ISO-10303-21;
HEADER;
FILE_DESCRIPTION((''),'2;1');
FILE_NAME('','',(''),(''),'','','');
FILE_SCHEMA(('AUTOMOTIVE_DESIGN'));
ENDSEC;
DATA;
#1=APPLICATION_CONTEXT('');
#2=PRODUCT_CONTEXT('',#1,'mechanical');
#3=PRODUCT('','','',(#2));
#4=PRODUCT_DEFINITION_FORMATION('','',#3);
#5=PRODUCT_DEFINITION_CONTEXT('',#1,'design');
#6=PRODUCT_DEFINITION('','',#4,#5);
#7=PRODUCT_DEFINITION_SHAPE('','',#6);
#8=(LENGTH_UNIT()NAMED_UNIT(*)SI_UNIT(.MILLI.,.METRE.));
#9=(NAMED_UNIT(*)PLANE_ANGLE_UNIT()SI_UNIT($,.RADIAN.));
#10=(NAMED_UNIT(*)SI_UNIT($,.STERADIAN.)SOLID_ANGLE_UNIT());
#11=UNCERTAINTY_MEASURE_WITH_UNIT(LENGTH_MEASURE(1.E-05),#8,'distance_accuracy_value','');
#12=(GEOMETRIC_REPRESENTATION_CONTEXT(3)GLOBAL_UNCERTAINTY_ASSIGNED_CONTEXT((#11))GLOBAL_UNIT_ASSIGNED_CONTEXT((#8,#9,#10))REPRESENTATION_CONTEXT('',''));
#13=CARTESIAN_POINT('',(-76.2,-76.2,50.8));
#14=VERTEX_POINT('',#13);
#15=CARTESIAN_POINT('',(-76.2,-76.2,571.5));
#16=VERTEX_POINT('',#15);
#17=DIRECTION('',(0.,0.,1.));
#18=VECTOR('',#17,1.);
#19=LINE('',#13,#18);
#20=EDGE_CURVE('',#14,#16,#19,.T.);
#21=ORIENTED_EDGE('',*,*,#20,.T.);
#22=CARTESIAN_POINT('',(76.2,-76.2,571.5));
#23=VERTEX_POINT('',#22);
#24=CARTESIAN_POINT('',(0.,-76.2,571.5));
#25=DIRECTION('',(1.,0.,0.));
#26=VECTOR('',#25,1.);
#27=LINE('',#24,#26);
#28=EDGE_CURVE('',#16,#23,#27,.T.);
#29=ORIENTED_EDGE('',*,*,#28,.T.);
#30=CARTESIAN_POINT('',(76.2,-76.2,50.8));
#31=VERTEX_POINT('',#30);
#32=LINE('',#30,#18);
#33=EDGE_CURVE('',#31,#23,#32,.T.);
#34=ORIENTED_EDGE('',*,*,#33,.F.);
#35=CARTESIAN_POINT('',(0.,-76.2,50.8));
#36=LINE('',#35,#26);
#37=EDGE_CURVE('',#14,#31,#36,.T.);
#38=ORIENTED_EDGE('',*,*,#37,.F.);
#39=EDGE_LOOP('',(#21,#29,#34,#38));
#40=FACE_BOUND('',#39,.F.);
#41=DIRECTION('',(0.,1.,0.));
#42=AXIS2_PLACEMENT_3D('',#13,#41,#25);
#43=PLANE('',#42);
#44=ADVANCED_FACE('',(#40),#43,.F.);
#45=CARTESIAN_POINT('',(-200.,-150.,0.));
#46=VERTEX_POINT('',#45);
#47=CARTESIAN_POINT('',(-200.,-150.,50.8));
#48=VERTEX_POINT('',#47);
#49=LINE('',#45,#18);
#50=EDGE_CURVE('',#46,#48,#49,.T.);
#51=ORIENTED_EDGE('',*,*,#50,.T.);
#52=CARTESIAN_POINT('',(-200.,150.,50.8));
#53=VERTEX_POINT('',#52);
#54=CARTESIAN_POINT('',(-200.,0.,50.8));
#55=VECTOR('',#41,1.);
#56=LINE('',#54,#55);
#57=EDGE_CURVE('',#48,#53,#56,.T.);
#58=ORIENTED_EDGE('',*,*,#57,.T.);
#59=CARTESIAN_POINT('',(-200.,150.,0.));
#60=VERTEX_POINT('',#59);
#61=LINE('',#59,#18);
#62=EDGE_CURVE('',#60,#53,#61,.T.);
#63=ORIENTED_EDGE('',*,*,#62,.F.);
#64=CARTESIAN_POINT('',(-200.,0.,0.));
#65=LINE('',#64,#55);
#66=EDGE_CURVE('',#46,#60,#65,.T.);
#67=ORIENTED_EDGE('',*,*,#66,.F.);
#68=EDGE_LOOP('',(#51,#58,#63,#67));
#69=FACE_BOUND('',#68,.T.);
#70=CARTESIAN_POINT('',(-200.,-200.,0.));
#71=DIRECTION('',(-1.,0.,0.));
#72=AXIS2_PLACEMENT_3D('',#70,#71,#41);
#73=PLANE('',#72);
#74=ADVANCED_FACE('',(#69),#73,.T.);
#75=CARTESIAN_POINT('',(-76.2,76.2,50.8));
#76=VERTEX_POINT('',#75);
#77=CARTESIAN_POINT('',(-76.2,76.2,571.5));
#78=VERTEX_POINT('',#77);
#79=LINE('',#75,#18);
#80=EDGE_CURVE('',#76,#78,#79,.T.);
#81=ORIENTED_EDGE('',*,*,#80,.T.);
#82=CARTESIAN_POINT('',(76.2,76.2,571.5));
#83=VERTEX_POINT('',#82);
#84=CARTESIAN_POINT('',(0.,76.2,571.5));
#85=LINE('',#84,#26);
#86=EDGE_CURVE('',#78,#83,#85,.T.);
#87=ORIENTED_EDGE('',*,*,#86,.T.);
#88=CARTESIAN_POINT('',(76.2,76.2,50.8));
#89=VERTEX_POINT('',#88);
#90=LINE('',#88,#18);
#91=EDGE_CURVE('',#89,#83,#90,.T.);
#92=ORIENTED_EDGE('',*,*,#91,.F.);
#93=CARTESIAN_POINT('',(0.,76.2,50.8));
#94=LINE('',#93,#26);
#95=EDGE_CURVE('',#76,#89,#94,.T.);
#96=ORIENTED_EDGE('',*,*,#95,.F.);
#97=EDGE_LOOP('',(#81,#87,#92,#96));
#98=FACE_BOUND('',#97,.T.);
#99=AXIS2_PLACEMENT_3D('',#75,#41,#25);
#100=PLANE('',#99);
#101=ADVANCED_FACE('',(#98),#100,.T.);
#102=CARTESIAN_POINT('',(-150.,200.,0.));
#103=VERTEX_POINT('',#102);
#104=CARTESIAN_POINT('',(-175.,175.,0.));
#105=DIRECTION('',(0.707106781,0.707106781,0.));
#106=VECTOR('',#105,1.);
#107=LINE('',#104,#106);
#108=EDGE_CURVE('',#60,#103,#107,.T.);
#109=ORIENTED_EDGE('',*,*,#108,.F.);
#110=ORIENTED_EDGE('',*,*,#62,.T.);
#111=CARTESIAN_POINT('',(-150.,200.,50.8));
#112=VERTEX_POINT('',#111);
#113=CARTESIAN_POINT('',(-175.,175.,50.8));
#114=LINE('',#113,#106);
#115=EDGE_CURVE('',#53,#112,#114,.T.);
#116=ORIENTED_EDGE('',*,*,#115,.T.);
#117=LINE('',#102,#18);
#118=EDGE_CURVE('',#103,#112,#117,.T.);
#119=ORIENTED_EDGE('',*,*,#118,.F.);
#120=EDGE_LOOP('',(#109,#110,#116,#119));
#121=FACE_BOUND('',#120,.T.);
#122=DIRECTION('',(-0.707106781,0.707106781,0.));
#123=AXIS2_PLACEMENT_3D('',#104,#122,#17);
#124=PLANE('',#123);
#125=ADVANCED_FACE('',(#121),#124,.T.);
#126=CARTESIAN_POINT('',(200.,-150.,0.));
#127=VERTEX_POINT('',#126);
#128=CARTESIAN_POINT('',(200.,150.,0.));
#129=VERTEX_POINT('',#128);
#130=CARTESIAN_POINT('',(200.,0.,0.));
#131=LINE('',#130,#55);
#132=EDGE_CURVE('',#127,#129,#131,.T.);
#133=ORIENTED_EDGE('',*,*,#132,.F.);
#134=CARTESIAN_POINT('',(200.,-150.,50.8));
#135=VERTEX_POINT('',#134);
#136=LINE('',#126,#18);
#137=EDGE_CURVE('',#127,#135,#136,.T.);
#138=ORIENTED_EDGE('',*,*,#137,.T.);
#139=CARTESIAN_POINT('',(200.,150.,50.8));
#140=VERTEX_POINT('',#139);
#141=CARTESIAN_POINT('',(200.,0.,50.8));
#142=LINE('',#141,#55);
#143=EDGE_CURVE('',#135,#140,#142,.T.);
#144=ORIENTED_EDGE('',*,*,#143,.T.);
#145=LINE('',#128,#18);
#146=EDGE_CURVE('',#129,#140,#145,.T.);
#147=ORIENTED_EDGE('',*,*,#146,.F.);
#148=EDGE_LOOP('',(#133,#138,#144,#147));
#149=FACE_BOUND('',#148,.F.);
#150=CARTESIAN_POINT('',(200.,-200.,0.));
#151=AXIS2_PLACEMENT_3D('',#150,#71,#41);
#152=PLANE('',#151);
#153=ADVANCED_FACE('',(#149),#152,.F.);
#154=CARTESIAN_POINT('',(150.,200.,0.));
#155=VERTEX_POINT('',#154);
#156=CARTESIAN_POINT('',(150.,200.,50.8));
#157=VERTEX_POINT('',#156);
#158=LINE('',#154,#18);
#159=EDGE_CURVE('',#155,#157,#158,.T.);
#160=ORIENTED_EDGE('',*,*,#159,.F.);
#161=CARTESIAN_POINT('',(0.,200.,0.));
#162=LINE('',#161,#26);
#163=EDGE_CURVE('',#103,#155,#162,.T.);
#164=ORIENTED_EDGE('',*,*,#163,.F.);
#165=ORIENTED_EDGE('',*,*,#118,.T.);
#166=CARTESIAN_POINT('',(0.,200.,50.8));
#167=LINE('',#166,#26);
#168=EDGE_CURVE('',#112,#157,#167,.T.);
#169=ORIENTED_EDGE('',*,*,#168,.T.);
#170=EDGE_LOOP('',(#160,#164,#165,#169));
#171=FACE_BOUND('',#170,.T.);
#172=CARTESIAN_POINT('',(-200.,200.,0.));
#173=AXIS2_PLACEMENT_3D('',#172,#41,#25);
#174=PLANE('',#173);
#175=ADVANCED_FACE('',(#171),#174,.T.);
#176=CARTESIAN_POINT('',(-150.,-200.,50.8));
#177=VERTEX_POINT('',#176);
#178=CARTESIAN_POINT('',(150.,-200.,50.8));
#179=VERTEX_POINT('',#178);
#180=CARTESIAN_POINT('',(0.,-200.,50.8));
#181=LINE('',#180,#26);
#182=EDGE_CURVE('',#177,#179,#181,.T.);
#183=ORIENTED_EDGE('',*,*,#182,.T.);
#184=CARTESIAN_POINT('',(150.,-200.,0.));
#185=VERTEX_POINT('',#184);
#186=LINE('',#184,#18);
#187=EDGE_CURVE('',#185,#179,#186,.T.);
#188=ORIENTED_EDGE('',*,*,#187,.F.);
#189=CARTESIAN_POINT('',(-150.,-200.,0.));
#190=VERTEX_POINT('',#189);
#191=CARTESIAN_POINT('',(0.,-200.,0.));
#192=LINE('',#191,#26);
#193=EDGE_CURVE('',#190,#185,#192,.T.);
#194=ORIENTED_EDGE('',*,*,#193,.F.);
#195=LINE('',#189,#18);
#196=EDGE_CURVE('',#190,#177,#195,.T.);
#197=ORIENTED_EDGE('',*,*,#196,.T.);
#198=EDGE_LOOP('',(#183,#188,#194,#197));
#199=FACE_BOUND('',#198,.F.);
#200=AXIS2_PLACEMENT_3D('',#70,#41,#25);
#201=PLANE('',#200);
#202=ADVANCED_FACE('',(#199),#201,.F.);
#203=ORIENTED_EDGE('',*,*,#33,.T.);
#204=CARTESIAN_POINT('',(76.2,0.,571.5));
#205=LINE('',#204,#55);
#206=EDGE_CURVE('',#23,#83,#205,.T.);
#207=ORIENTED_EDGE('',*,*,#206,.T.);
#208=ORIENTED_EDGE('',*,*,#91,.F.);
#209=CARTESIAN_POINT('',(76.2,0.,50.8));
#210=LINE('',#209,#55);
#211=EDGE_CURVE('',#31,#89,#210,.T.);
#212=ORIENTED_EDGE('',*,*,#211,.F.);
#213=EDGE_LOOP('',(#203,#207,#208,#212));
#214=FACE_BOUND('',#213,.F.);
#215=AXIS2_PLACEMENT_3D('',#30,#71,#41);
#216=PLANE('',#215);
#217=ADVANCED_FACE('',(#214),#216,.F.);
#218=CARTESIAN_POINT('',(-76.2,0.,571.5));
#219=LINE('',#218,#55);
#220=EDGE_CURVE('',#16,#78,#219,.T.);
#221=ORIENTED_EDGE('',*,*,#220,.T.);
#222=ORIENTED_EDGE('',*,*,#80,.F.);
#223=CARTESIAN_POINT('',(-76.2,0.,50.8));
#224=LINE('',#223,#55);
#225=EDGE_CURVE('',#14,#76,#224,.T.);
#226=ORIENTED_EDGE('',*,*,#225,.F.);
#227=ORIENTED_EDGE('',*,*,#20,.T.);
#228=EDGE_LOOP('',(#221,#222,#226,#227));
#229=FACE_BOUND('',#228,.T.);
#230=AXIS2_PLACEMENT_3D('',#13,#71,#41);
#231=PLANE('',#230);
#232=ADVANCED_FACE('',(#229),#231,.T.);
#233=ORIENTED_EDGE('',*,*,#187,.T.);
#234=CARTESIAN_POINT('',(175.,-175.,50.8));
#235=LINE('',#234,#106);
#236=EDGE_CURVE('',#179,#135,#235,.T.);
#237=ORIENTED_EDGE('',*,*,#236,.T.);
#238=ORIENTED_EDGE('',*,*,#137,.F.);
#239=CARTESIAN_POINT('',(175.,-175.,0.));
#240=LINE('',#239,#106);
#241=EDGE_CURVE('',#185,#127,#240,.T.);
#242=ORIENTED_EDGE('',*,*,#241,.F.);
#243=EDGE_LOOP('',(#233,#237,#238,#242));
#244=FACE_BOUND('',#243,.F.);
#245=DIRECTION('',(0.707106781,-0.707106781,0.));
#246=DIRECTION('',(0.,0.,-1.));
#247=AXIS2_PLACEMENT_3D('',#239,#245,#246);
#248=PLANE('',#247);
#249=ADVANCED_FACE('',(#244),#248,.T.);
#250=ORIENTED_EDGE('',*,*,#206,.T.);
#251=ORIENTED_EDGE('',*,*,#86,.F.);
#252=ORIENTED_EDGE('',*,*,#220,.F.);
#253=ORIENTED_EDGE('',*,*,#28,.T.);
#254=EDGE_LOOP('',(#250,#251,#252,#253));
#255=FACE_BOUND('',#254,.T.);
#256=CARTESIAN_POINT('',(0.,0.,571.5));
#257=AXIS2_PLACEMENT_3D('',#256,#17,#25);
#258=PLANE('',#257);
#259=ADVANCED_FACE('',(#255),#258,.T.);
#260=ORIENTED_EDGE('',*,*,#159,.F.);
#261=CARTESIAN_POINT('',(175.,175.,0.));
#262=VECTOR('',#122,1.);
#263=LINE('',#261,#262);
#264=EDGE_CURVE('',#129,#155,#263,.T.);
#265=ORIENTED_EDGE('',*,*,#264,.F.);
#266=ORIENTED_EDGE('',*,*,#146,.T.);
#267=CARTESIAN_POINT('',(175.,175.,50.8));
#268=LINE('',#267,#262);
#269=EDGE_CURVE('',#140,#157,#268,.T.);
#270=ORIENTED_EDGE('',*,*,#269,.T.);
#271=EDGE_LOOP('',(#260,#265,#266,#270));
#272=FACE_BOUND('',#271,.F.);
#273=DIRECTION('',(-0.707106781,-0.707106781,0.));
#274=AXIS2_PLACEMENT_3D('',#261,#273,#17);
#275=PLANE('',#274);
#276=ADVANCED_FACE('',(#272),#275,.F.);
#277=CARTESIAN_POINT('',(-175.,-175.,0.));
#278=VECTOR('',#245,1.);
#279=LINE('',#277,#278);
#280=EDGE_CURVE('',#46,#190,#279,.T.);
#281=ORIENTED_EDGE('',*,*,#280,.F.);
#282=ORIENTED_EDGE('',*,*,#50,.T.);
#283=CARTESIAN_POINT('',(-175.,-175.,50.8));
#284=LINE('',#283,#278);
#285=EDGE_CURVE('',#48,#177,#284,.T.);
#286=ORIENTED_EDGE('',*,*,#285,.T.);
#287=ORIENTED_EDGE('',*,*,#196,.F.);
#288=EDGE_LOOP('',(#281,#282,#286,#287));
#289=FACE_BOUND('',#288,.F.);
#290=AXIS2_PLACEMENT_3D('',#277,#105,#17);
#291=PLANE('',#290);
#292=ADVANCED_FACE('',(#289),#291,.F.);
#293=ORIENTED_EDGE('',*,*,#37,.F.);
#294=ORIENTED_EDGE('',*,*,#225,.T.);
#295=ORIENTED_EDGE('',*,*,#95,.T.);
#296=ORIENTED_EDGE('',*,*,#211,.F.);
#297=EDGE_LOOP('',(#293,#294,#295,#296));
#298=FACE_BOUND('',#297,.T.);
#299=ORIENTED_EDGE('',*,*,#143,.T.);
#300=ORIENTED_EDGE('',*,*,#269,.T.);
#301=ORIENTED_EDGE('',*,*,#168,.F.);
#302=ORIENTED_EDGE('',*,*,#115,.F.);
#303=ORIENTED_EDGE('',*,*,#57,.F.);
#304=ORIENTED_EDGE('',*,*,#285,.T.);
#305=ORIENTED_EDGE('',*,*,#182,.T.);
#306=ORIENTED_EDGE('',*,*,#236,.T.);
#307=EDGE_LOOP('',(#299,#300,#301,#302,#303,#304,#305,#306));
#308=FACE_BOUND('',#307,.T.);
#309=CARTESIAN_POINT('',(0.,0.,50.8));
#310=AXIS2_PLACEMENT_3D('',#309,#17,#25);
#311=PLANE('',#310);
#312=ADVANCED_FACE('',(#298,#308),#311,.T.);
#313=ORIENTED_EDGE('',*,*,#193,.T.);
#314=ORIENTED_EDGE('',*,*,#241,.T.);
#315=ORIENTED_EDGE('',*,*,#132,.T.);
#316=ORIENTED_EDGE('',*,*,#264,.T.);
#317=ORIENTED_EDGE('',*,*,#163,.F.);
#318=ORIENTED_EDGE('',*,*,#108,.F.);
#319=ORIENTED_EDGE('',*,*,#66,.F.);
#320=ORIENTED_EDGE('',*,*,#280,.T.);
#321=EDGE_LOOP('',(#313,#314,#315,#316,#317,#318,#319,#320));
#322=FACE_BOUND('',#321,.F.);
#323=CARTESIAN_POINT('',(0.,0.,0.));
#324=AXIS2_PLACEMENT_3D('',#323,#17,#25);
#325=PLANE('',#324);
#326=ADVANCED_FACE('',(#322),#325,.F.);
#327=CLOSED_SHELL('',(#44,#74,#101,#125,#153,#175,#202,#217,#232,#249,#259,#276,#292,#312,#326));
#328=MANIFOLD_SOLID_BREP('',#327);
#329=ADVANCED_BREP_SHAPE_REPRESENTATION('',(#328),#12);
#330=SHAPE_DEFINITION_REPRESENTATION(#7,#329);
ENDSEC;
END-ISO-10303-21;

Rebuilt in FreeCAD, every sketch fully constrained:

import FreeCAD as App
import Part
import Sketcher
from FreeCAD import Vector
Q = App.Units.Quantity


def edges_at(feature, points):
    """Names of the edges that pass closest to the given points."""
    edges = feature.Shape.Edges
    near = lambda p: min(range(len(edges)), key=lambda i: edges[i].distToShape(Part.Vertex(*p))[0])
    return sorted({f"Edge{near(p) + 1}" for p in points})

doc = App.newDocument("Part")
body = doc.addObject("PartDesign::Body", "Body")

sketch1 = body.newObject("Sketcher::SketchObject", "Sketch")
sketch1.AttachmentSupport = (doc.getObject("XY_Plane"), [""])
sketch1.MapMode = "FlatFace"
sketch1.addGeometry(Part.LineSegment(Vector(-200, 200, 0), Vector(-200, -200, 0)), False)
sketch1.addGeometry(Part.LineSegment(Vector(-200, -200, 0), Vector(200, -200, 0)), False)
sketch1.addGeometry(Part.LineSegment(Vector(200, -200, 0), Vector(200, 200, 0)), False)
sketch1.addGeometry(Part.LineSegment(Vector(200, 200, 0), Vector(-200, 200, 0)), False)
sketch1.addConstraint(Sketcher.Constraint("Coincident", 0, 2, 1, 1))
sketch1.addConstraint(Sketcher.Constraint("Coincident", 1, 2, 2, 1))
sketch1.addConstraint(Sketcher.Constraint("Coincident", 2, 2, 3, 1))
sketch1.addConstraint(Sketcher.Constraint("Coincident", 3, 2, 0, 1))
sketch1.addConstraint(Sketcher.Constraint("Vertical", 0))
sketch1.addConstraint(Sketcher.Constraint("Horizontal", 1))
sketch1.addConstraint(Sketcher.Constraint("Vertical", 2))
sketch1.addConstraint(Sketcher.Constraint("Horizontal", 3))
sketch1.addConstraint(Sketcher.Constraint("Symmetric", 0, 2, 2, 2, -1, 1))
sketch1.addConstraint(Sketcher.Constraint("Equal", 3, 0))
sketch1.addConstraint(Sketcher.Constraint("DistanceX", 1, 1, 1, 2, 400.0))
pad1 = body.newObject("PartDesign::Pad", "Pad")
pad1.Profile = sketch1
pad1.Length = Q("2 in")
doc.recompute()

chamfer = body.newObject("PartDesign::Chamfer", "Chamfer")
chamfer.Base = (pad1, edges_at(pad1, [
    (-200, 200, 25.4),
    (-200, -200, 25.4),
    (200, -200, 25.4),
    (200, 200, 25.4),
]))
chamfer.Size = 50

sketch2 = body.newObject("Sketcher::SketchObject", "Sketch001")
sketch2.AttachmentSupport = (doc.getObject("XY_Plane"), [""])
sketch2.MapMode = "FlatFace"
sketch2.AttachmentOffset = App.Placement(Vector(0, 0, 2 * 25.4), App.Rotation())
sketch2.addGeometry(Part.LineSegment(Vector(-76, 76, 0), Vector(-76, -76, 0)), False)
sketch2.addGeometry(Part.LineSegment(Vector(-76, -76, 0), Vector(76, -76, 0)), False)
sketch2.addGeometry(Part.LineSegment(Vector(76, -76, 0), Vector(76, 76, 0)), False)
sketch2.addGeometry(Part.LineSegment(Vector(76, 76, 0), Vector(-76, 76, 0)), False)
sketch2.addConstraint(Sketcher.Constraint("Coincident", 0, 2, 1, 1))
sketch2.addConstraint(Sketcher.Constraint("Coincident", 1, 2, 2, 1))
sketch2.addConstraint(Sketcher.Constraint("Coincident", 2, 2, 3, 1))
sketch2.addConstraint(Sketcher.Constraint("Coincident", 3, 2, 0, 1))
sketch2.addConstraint(Sketcher.Constraint("Vertical", 0))
sketch2.addConstraint(Sketcher.Constraint("Horizontal", 1))
sketch2.addConstraint(Sketcher.Constraint("Vertical", 2))
sketch2.addConstraint(Sketcher.Constraint("Horizontal", 3))
sketch2.addConstraint(Sketcher.Constraint("Symmetric", 0, 2, 2, 2, -1, 1))
sketch2.addConstraint(Sketcher.Constraint("Equal", 3, 0))
sketch2.addConstraint(Sketcher.Constraint("DistanceX", 1, 1, 1, 2, Q("6 in")))
pad2 = body.newObject("PartDesign::Pad", "Pad001")
pad2.Profile = sketch2
pad2.Length = Q("20.5 in")

doc.recompute()
